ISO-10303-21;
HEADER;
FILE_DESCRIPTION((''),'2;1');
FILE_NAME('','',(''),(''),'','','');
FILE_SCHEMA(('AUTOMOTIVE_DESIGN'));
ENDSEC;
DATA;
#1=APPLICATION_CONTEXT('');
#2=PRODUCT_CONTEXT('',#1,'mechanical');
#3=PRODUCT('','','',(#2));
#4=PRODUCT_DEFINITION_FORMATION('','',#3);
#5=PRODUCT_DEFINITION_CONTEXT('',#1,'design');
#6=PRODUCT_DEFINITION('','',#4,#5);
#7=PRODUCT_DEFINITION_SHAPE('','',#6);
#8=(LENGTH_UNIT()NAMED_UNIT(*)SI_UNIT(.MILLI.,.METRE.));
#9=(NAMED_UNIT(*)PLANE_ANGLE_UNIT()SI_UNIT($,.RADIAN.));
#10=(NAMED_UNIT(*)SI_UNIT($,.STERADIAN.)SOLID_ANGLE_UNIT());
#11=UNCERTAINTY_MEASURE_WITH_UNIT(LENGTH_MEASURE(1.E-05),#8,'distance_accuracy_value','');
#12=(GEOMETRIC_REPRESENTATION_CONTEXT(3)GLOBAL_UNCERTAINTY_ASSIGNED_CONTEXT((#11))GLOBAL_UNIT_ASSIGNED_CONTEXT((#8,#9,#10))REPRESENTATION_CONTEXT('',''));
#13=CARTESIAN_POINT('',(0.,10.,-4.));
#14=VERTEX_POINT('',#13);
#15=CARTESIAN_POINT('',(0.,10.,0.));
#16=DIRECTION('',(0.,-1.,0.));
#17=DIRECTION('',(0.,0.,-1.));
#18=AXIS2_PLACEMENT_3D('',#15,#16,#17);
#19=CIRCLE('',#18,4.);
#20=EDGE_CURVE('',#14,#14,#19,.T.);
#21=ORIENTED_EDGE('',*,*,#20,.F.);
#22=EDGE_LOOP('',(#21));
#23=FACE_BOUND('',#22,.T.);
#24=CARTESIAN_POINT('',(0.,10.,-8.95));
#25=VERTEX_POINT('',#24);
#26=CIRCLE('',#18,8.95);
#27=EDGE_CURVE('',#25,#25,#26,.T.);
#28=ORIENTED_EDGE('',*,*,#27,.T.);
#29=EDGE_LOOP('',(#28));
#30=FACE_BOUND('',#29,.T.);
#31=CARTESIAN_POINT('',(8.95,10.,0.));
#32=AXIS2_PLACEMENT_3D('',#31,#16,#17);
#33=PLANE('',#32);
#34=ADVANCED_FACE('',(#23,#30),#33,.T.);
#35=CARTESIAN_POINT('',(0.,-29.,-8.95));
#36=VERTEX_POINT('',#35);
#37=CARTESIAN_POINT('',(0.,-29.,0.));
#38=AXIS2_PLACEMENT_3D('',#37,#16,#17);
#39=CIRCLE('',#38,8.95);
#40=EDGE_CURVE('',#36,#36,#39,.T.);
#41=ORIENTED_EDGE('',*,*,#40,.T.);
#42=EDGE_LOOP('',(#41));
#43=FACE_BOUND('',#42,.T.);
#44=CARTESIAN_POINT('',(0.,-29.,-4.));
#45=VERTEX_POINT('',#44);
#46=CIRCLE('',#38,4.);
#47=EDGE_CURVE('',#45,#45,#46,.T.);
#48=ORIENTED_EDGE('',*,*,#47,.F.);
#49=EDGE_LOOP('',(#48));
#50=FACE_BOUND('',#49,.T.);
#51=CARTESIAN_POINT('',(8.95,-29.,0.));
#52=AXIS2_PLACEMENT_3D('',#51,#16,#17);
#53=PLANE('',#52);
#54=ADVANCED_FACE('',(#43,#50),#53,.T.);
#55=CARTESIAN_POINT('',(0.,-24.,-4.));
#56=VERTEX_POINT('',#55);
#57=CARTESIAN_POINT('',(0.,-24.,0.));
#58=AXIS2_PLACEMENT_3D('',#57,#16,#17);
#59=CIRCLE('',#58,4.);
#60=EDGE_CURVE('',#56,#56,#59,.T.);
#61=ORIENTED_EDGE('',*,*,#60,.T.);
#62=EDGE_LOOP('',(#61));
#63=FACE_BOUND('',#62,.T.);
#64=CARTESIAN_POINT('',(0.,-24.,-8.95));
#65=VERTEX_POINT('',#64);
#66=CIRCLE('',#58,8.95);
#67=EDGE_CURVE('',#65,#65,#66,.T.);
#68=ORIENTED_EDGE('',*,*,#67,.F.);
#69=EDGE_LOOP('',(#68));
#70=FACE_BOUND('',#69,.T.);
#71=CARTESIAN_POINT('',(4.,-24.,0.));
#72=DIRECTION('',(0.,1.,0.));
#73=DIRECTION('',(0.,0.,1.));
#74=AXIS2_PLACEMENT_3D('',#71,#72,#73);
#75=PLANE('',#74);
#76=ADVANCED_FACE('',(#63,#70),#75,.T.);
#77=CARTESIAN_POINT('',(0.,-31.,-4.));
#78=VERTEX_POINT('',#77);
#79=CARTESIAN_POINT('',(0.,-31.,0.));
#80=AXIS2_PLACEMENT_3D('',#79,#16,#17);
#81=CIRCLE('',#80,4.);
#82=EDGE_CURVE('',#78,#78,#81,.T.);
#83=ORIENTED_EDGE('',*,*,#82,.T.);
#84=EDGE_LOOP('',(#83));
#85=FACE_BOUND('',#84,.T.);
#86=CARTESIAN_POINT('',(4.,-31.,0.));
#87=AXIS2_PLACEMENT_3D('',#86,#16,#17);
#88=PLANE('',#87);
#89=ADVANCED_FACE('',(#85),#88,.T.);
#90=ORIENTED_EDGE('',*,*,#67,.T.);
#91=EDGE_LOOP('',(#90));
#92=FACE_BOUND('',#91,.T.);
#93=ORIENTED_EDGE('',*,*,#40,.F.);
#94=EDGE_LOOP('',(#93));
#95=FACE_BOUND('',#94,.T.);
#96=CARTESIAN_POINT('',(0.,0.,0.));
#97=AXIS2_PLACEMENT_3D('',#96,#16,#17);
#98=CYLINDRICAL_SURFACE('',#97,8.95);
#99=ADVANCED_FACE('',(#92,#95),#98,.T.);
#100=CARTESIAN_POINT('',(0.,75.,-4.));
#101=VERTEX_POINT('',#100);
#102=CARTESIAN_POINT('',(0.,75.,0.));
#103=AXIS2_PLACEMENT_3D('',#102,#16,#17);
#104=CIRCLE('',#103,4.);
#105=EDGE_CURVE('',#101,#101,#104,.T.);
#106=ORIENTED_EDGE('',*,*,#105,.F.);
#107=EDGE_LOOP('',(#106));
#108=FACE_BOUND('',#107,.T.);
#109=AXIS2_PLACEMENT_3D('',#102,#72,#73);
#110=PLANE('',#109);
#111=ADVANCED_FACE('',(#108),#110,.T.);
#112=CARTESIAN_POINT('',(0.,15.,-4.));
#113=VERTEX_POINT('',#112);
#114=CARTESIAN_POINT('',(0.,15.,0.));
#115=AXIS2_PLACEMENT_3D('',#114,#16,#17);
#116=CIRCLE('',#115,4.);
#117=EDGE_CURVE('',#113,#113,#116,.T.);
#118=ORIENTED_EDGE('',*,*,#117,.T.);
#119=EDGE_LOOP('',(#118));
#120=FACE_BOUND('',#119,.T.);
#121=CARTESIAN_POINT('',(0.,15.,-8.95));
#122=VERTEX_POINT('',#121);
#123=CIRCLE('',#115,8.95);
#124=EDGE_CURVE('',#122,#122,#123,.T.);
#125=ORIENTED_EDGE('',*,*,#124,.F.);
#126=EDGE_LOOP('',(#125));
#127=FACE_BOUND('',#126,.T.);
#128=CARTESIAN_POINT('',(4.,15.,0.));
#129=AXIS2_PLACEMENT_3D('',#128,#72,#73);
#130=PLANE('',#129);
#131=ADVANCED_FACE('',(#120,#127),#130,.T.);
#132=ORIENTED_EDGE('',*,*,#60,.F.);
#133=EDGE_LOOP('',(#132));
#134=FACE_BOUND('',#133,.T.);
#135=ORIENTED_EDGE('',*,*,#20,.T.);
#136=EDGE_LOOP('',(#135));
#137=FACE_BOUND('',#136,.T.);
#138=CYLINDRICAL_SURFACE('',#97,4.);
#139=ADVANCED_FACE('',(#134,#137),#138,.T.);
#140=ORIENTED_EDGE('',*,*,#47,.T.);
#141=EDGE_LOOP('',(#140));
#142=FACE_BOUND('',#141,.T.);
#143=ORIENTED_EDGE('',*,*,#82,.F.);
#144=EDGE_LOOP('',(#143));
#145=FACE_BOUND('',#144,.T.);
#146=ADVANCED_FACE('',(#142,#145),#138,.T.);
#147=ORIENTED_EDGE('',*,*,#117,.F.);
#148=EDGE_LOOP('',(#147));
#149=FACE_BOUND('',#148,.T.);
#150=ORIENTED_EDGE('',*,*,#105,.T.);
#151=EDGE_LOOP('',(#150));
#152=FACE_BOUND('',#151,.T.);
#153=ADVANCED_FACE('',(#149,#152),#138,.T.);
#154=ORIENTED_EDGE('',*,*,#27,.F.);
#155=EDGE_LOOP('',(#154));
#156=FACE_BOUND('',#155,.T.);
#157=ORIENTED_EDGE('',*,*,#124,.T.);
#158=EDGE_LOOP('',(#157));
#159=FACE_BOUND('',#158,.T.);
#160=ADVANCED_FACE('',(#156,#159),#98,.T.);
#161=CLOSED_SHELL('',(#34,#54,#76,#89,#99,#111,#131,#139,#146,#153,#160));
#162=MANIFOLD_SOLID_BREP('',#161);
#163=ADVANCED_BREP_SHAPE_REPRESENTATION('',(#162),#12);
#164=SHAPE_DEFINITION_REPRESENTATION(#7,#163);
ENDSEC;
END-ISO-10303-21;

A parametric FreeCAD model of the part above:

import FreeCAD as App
import Part
import Sketcher
from FreeCAD import Vector

doc = App.newDocument("Part")
body = doc.addObject("PartDesign::Body", "Body")

# Sketch on XY plane
sketch1 = doc.addObject("Sketcher::SketchObject", "Sketch")
body.addObject(sketch1)
sketch1.AttachmentSupport = (doc.XY_Plane, [""])
sketch1.MapMode = "FlatFace"
sketch1.addGeometry(Part.LineSegment(Vector(4, 75, 0), Vector(0, 75, 0)), False)
sketch1.addGeometry(Part.LineSegment(Vector(0, 75, 0), Vector(0, -31, 0)), False)
sketch1.addGeometry(Part.LineSegment(Vector(0, -31, 0), Vector(4, -31, 0)), False)
sketch1.addGeometry(Part.LineSegment(Vector(4, -31, 0), Vector(4, -29, 0)), False)
sketch1.addGeometry(Part.LineSegment(Vector(4, -29, 0), Vector(8.9, -29, 0)), False)
sketch1.addGeometry(Part.LineSegment(Vector(8.9, -29, 0), Vector(8.9, -24, 0)), False)
sketch1.addGeometry(Part.LineSegment(Vector(8.9, -24, 0), Vector(4, -24, 0)), False)
sketch1.addGeometry(Part.LineSegment(Vector(4, -24, 0), Vector(4, 10, 0)), False)
sketch1.addGeometry(Part.LineSegment(Vector(4, 10, 0), Vector(8.9, 10, 0)), False)
sketch1.addGeometry(Part.LineSegment(Vector(8.9, 10, 0), Vector(8.9, 15, 0)), False)
sketch1.addGeometry(Part.LineSegment(Vector(8.9, 15, 0), Vector(4, 15, 0)), False)
sketch1.addGeometry(Part.LineSegment(Vector(4, 15, 0), Vector(4, 75, 0)), False)
sketch1.addConstraint(Sketcher.Constraint("Coincident", 0, 2, 1, 1))
sketch1.addConstraint(Sketcher.Constraint("Coincident", 1, 2, 2, 1))
sketch1.addConstraint(Sketcher.Constraint("Coincident", 2, 2, 3, 1))
sketch1.addConstraint(Sketcher.Constraint("Coincident", 3, 2, 4, 1))
sketch1.addConstraint(Sketcher.Constraint("Coincident", 4, 2, 5, 1))
sketch1.addConstraint(Sketcher.Constraint("Coincident", 5, 2, 6, 1))
sketch1.addConstraint(Sketcher.Constraint("Coincident", 6, 2, 7, 1))
sketch1.addConstraint(Sketcher.Constraint("Coincident", 7, 2, 8, 1))
sketch1.addConstraint(Sketcher.Constraint("Coincident", 8, 2, 9, 1))
sketch1.addConstraint(Sketcher.Constraint("Coincident", 9, 2, 10, 1))
sketch1.addConstraint(Sketcher.Constraint("Coincident", 10, 2, 11, 1))
sketch1.addConstraint(Sketcher.Constraint("Coincident", 11, 2, 0, 1))
sketch1.addConstraint(Sketcher.Constraint("Horizontal", 0))
sketch1.addConstraint(Sketcher.Constraint("Vertical", 1))
sketch1.addConstraint(Sketcher.Constraint("Horizontal", 2))
sketch1.addConstraint(Sketcher.Constraint("Vertical", 3))
sketch1.addConstraint(Sketcher.Constraint("Horizontal", 4))
sketch1.addConstraint(Sketcher.Constraint("Vertical", 5))
sketch1.addConstraint(Sketcher.Constraint("Horizontal", 6))
sketch1.addConstraint(Sketcher.Constraint("Vertical", 7))
sketch1.addConstraint(Sketcher.Constraint("Horizontal", 8))
sketch1.addConstraint(Sketcher.Constraint("Vertical", 9))
sketch1.addConstraint(Sketcher.Constraint("Horizontal", 10))
sketch1.addConstraint(Sketcher.Constraint("Vertical", 11))
sketch1.addConstraint(Sketcher.Constraint("PointOnObject", 0, 2, -2))
sketch1.addConstraint(Sketcher.Constraint("Vertical", 3, 2, 6, 2))
sketch1.addConstraint(Sketcher.Constraint("Vertical", 5, 2, 8, 2))
sketch1.addConstraint(Sketcher.Constraint("Vertical", 7, 2, 10, 2))
sketch1.addConstraint(Sketcher.Constraint("Equal", 5, 9))
sketch1.addConstraint(Sketcher.Constraint("DistanceX", 0, 2, 0, 1, 4.0))
sketch1.addConstraint(Sketcher.Constraint("DistanceY", 1, 2, 1, 1, 106.0))
sketch1.addConstraint(Sketcher.Constraint("DistanceY", 3, 1, 3, 2, 2.0))
sketch1.addConstraint(Sketcher.Constraint("DistanceY", 5, 1, 5, 2, 5.0))
sketch1.addConstraint(Sketcher.Constraint("DistanceY", 7, 1, 7, 2, 34.0))
sketch1.addConstraint(Sketcher.Constraint("DistanceY", -1, 1, 0, 2, 75.0))
sketch1.addConstraint(Sketcher.Constraint("DistanceX", 4, 1, 4, 2, 4.95))
revolution = doc.addObject("PartDesign::Revolution", "Revolution")
body.addObject(revolution)
revolution.Profile = sketch1
revolution.ReferenceAxis = (sketch1, ["V_Axis"])
revolution.Angle = 360

doc.recompute()
